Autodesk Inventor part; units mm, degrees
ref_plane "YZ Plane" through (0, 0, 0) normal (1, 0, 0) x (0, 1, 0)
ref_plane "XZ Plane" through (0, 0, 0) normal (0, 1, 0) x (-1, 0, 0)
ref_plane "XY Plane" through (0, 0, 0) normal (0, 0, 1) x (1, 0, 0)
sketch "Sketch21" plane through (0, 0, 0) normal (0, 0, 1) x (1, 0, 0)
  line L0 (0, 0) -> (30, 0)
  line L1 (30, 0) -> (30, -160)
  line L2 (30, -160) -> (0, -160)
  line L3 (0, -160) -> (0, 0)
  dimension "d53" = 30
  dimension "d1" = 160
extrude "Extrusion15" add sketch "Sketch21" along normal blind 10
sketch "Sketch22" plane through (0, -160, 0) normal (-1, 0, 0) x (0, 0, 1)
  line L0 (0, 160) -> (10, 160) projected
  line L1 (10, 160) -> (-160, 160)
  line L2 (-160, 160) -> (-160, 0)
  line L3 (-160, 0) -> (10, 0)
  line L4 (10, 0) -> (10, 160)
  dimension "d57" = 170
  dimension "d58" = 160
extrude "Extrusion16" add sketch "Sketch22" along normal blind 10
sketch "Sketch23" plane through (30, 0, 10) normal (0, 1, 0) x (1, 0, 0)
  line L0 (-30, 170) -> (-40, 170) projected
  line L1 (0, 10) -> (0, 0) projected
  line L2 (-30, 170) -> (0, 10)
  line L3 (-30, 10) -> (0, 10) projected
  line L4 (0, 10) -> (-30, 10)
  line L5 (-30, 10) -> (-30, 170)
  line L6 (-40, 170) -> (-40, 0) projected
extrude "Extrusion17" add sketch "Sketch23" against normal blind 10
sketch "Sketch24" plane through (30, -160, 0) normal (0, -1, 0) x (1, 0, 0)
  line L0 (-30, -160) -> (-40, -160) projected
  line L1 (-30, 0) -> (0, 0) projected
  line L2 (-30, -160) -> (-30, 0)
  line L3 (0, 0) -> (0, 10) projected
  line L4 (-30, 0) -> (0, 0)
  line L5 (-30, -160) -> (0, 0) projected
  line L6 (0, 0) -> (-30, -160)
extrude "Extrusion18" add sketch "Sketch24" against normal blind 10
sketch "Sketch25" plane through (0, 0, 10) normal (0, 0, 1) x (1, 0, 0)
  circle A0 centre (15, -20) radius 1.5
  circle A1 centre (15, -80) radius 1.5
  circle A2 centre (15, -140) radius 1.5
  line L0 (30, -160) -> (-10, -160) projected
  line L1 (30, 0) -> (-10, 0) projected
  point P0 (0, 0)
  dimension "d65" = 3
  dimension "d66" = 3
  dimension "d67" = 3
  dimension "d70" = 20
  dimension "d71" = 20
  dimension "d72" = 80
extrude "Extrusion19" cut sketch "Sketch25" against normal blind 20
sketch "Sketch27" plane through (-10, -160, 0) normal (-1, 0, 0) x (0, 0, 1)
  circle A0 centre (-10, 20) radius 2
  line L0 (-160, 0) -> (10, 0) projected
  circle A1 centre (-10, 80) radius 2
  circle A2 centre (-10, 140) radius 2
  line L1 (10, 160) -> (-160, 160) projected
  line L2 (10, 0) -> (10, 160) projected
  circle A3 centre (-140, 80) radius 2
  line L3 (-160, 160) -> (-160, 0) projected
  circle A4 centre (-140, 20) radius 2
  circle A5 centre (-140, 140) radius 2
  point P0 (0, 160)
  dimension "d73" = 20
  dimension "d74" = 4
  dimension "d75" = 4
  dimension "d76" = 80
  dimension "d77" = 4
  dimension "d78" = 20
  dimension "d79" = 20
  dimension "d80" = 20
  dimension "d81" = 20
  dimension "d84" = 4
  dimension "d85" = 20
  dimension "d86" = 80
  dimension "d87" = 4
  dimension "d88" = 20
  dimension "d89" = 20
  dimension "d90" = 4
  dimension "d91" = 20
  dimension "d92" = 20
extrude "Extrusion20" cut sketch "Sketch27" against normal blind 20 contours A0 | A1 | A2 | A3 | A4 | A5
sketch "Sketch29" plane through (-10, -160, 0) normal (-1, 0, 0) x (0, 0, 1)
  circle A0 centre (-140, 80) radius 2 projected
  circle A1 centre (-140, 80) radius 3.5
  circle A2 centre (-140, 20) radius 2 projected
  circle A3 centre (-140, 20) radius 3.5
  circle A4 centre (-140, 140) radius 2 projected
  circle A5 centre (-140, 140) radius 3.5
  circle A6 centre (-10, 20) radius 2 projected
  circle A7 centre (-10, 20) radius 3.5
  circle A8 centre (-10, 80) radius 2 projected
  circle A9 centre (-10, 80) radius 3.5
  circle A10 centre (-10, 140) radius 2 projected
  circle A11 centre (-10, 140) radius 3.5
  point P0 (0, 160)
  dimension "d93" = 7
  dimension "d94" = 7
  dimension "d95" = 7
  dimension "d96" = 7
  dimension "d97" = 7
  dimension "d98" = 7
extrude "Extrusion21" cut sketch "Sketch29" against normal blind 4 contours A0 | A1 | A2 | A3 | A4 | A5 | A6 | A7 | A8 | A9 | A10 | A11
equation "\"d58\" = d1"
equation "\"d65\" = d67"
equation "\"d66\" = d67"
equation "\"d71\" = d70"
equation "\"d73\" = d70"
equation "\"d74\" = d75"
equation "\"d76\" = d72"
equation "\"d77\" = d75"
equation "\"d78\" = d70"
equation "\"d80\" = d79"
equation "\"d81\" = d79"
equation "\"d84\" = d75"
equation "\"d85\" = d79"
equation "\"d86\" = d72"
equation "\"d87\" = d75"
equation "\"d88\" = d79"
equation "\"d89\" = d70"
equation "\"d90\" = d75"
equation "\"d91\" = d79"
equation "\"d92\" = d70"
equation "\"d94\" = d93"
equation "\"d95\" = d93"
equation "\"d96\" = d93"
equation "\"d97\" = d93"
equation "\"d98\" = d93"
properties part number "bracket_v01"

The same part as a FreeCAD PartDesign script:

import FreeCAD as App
import Part
import Sketcher


def add_polygon(sketch, points):
    """Adds a closed chain of lines whose ends are joined by coincident constraints."""
    first, n = sketch.GeometryCount, len(points)
    for a, b in zip(points, points[1:] + points[:1]):
        sketch.addGeometry(Part.LineSegment(App.Vector(*a, 0), App.Vector(*b, 0)), False)
    for i in range(n):
        sketch.addConstraint(Sketcher.Constraint("Coincident", first + i, 2, first + (i + 1) % n, 1))

doc = App.newDocument("Part")
body = doc.addObject("PartDesign::Body", "Body")

# Sketch on XY plane
sketch1 = doc.addObject("Sketcher::SketchObject", "Sketch")
body.addObject(sketch1)
sketch1.AttachmentSupport = (doc.XY_Plane, [""])
sketch1.MapMode = "FlatFace"
add_polygon(sketch1, [(30, 0), (0, 0), (0, -160), (30, -160)])  # lines 0-3
sketch1.addConstraint([
    Sketcher.Constraint("Horizontal", 0),
    Sketcher.Constraint("Vertical", 1),
    Sketcher.Constraint("Horizontal", 2),
    Sketcher.Constraint("Vertical", 3),
    Sketcher.Constraint("Coincident", 0, 2, -1, 1),
    Sketcher.Constraint("DistanceX", 0, 2, 0, 1, 30.0),
    Sketcher.Constraint("DistanceY", 1, 2, 1, 1, 160.0),
])
pad1 = doc.addObject("PartDesign::Pad", "Pad")
body.addObject(pad1)
pad1.Profile = sketch1
pad1.Length = 10

# Sketch on YZ plane
sketch2 = doc.addObject("Sketcher::SketchObject", "Sketch001")
body.addObject(sketch2)
sketch2.AttachmentSupport = (doc.YZ_Plane, [""])
sketch2.MapMode = "FlatFace"
add_polygon(sketch2, [(0, 10), (0, -160), (-160, -160), (-160, 10)])  # lines 0-3
sketch2.addConstraint([
    Sketcher.Constraint("Vertical", 0),
    Sketcher.Constraint("Horizontal", 1),
    Sketcher.Constraint("Vertical", 2),
    Sketcher.Constraint("Horizontal", 3),
    Sketcher.Constraint("PointOnObject", 0, 2, -2),
    Sketcher.Constraint("DistanceX", 1, 2, 1, 1, 160.0),
    Sketcher.Constraint("DistanceY", 0, 2, 0, 1, 170.0),
    Sketcher.Constraint("DistanceY", 0, 2, -1, 1, 160.0),
])
pad2 = doc.addObject("PartDesign::Pad", "Pad001")
body.addObject(pad2)
pad2.Profile = sketch2
pad2.Length = 10
pad2.Reversed = True

# Sketch on XZ plane
sketch3 = doc.addObject("Sketcher::SketchObject", "Sketch002")
body.addObject(sketch3)
sketch3.AttachmentSupport = (doc.XZ_Plane, [""])
sketch3.MapMode = "FlatFace"
add_polygon(sketch3, [(30, 0), (0, -160), (0, 0)])  # lines 0-2
sketch3.addConstraint([
    Sketcher.Constraint("Vertical", 1),
    Sketcher.Constraint("Horizontal", 2),
    Sketcher.Constraint("Coincident", 1, 2, -1, 1),
    Sketcher.Constraint("DistanceX", 2, 1, 2, 2, 30.0),
    Sketcher.Constraint("DistanceY", 1, 1, 1, 2, 160.0),
])
pad3 = doc.addObject("PartDesign::Pad", "Pad002")
body.addObject(pad3)
pad3.Profile = sketch3
pad3.Length = 10

# Sketch on XZ plane
sketch4 = doc.addObject("Sketcher::SketchObject", "Sketch003")
body.addObject(sketch4)
sketch4.AttachmentSupport = (doc.XZ_Plane, [""])
sketch4.MapMode = "FlatFace"
sketch4.AttachmentOffset = App.Placement(App.Vector(0, 0, 160), App.Rotation())
add_polygon(sketch4, [(30, 0), (0, 0), (0, -160)])  # lines 0-2
sketch4.addConstraint([
    Sketcher.Constraint("Horizontal", 0),
    Sketcher.Constraint("Vertical", 1),
    Sketcher.Constraint("Coincident", 0, 2, -1, 1),
    Sketcher.Constraint("DistanceX", 0, 2, 0, 1, 30.0),
    Sketcher.Constraint("DistanceY", 1, 2, 1, 1, 160.0),
])
pad4 = doc.addObject("PartDesign::Pad", "Pad003")
body.addObject(pad4)
pad4.Profile = sketch4
pad4.Length = 10
pad4.Reversed = True

# Sketch on XY plane
sketch5 = doc.addObject("Sketcher::SketchObject", "Sketch004")
body.addObject(sketch5)
sketch5.AttachmentSupport = (doc.XY_Plane, [""])
sketch5.MapMode = "FlatFace"
sketch5.AttachmentOffset = App.Placement(App.Vector(0, 0, 10), App.Rotation())
sketch5.addGeometry([
    Part.Circle(App.Vector(15, -20, 0), App.Vector(0, 0, 1), 1.5),
    Part.Circle(App.Vector(15, -80, 0), App.Vector(0, 0, 1), 1.5),
    Part.Circle(App.Vector(15, -140, 0), App.Vector(0, 0, 1), 1.5),
], False)
sketch5.addConstraint([
    Sketcher.Constraint("Equal", 0, 1),
    Sketcher.Constraint("Equal", 1, 2),
    Sketcher.Constraint("Vertical", 0, 3, 1, 3),
    Sketcher.Constraint("Vertical", 1, 3, 2, 3),
    Sketcher.Constraint("Diameter", 0, 3.0),
    Sketcher.Constraint("DistanceY", 0, 3, -1, 1, 20.0),
    Sketcher.Constraint("DistanceY", 1, 3, -1, 1, 80.0),
    Sketcher.Constraint("DistanceX", -1, 1, 0, 3, 15.0),
    Sketcher.Constraint("DistanceY", 2, 3, -1, 1, 140.0),
])
pocket1 = doc.addObject("PartDesign::Pocket", "Pocket")
body.addObject(pocket1)
pocket1.Profile = sketch5
pocket1.Length = 20

# Sketch on YZ plane
sketch6 = doc.addObject("Sketcher::SketchObject", "Sketch005")
body.addObject(sketch6)
sketch6.AttachmentSupport = (doc.YZ_Plane, [""])
sketch6.MapMode = "FlatFace"
sketch6.AttachmentOffset = App.Placement(App.Vector(0, 0, -10), App.Rotation())
sketch6.addGeometry([
    Part.Circle(App.Vector(-140, -10, 0), App.Vector(0, 0, 1), 2),  # 0
    Part.Circle(App.Vector(-80, -10, 0), App.Vector(0, 0, 1), 2),  # 1
    Part.Circle(App.Vector(-20, -10, 0), App.Vector(0, 0, 1), 2),  # 2
    Part.Circle(App.Vector(-80, -140, 0), App.Vector(0, 0, 1), 2),  # 3
    Part.Circle(App.Vector(-140, -140, 0), App.Vector(0, 0, 1), 2),  # 4
    Part.Circle(App.Vector(-20, -140, 0), App.Vector(0, 0, 1), 2),  # 5
], False)
sketch6.addConstraint([
    Sketcher.Constraint("Equal", 0, 1),
    Sketcher.Constraint("Equal", 1, 2),
    Sketcher.Constraint("Equal", 2, 3),
    Sketcher.Constraint("Equal", 3, 4),
    Sketcher.Constraint("Equal", 4, 5),
    Sketcher.Constraint("Horizontal", 0, 3, 1, 3),
    Sketcher.Constraint("Horizontal", 1, 3, 2, 3),
    Sketcher.Constraint("Horizontal", 3, 3, 4, 3),
    Sketcher.Constraint("Horizontal", 4, 3, 5, 3),
    Sketcher.Constraint("Vertical", 1, 3, 3, 3),
    Sketcher.Constraint("Vertical", 0, 3, 4, 3),
    Sketcher.Constraint("Vertical", 2, 3, 5, 3),
    Sketcher.Constraint("Diameter", 0, 4.0),
    Sketcher.Constraint("DistanceX", 1, 3, -1, 1, 80.0),
    Sketcher.Constraint("DistanceX", 2, 3, -1, 1, 20.0),
    Sketcher.Constraint("DistanceX", 0, 3, -1, 1, 140.0),
    Sketcher.Constraint("DistanceY", 0, 3, -1, 1, 10.0),
    Sketcher.Constraint("DistanceY", 3, 3, -1, 1, 140.0),
])
pocket2 = doc.addObject("PartDesign::Pocket", "Pocket001")
body.addObject(pocket2)
pocket2.Profile = sketch6
pocket2.Length = 20
pocket2.Reversed = True

# Sketch on YZ plane
sketch7 = doc.addObject("Sketcher::SketchObject", "Sketch006")
body.addObject(sketch7)
sketch7.AttachmentSupport = (doc.YZ_Plane, [""])
sketch7.MapMode = "FlatFace"
sketch7.AttachmentOffset = App.Placement(App.Vector(0, 0, -10), App.Rotation())
sketch7.addGeometry([
    Part.Circle(App.Vector(-80, -140, 0), App.Vector(0, 0, 1), 3.5),  # 0
    Part.Circle(App.Vector(-140, -140, 0), App.Vector(0, 0, 1), 3.5),  # 1
    Part.Circle(App.Vector(-20, -140, 0), App.Vector(0, 0, 1), 3.5),  # 2
    Part.Circle(App.Vector(-140, -10, 0), App.Vector(0, 0, 1), 3.5),  # 3
    Part.Circle(App.Vector(-80, -10, 0), App.Vector(0, 0, 1), 3.5),  # 4
    Part.Circle(App.Vector(-20, -10, 0), App.Vector(0, 0, 1), 3.5),  # 5
], False)
sketch7.addConstraint([
    Sketcher.Constraint("Equal", 0, 1),
    Sketcher.Constraint("Equal", 1, 2),
    Sketcher.Constraint("Equal", 2, 3),
    Sketcher.Constraint("Equal", 3, 4),
    Sketcher.Constraint("Equal", 4, 5),
    Sketcher.Constraint("Horizontal", 0, 3, 1, 3),
    Sketcher.Constraint("Horizontal", 1, 3, 2, 3),
    Sketcher.Constraint("Horizontal", 3, 3, 4, 3),
    Sketcher.Constraint("Horizontal", 4, 3, 5, 3),
    Sketcher.Constraint("Vertical", 1, 3, 3, 3),
    Sketcher.Constraint("Vertical", 0, 3, 4, 3),
    Sketcher.Constraint("Vertical", 2, 3, 5, 3),
    Sketcher.Constraint("Diameter", 0, 7.0),
    Sketcher.Constraint("DistanceX", 0, 3, -1, 1, 80.0),
    Sketcher.Constraint("DistanceY", 0, 3, -1, 1, 140.0),
    Sketcher.Constraint("DistanceX", 1, 3, -1, 1, 140.0),
    Sketcher.Constraint("DistanceX", 2, 3, -1, 1, 20.0),
    Sketcher.Constraint("DistanceY", 3, 3, -1, 1, 10.0),
])
pocket3 = doc.addObject("PartDesign::Pocket", "Pocket002")
body.addObject(pocket3)
pocket3.Profile = sketch7
pocket3.Length = 4
pocket3.Reversed = True

doc.recompute()
